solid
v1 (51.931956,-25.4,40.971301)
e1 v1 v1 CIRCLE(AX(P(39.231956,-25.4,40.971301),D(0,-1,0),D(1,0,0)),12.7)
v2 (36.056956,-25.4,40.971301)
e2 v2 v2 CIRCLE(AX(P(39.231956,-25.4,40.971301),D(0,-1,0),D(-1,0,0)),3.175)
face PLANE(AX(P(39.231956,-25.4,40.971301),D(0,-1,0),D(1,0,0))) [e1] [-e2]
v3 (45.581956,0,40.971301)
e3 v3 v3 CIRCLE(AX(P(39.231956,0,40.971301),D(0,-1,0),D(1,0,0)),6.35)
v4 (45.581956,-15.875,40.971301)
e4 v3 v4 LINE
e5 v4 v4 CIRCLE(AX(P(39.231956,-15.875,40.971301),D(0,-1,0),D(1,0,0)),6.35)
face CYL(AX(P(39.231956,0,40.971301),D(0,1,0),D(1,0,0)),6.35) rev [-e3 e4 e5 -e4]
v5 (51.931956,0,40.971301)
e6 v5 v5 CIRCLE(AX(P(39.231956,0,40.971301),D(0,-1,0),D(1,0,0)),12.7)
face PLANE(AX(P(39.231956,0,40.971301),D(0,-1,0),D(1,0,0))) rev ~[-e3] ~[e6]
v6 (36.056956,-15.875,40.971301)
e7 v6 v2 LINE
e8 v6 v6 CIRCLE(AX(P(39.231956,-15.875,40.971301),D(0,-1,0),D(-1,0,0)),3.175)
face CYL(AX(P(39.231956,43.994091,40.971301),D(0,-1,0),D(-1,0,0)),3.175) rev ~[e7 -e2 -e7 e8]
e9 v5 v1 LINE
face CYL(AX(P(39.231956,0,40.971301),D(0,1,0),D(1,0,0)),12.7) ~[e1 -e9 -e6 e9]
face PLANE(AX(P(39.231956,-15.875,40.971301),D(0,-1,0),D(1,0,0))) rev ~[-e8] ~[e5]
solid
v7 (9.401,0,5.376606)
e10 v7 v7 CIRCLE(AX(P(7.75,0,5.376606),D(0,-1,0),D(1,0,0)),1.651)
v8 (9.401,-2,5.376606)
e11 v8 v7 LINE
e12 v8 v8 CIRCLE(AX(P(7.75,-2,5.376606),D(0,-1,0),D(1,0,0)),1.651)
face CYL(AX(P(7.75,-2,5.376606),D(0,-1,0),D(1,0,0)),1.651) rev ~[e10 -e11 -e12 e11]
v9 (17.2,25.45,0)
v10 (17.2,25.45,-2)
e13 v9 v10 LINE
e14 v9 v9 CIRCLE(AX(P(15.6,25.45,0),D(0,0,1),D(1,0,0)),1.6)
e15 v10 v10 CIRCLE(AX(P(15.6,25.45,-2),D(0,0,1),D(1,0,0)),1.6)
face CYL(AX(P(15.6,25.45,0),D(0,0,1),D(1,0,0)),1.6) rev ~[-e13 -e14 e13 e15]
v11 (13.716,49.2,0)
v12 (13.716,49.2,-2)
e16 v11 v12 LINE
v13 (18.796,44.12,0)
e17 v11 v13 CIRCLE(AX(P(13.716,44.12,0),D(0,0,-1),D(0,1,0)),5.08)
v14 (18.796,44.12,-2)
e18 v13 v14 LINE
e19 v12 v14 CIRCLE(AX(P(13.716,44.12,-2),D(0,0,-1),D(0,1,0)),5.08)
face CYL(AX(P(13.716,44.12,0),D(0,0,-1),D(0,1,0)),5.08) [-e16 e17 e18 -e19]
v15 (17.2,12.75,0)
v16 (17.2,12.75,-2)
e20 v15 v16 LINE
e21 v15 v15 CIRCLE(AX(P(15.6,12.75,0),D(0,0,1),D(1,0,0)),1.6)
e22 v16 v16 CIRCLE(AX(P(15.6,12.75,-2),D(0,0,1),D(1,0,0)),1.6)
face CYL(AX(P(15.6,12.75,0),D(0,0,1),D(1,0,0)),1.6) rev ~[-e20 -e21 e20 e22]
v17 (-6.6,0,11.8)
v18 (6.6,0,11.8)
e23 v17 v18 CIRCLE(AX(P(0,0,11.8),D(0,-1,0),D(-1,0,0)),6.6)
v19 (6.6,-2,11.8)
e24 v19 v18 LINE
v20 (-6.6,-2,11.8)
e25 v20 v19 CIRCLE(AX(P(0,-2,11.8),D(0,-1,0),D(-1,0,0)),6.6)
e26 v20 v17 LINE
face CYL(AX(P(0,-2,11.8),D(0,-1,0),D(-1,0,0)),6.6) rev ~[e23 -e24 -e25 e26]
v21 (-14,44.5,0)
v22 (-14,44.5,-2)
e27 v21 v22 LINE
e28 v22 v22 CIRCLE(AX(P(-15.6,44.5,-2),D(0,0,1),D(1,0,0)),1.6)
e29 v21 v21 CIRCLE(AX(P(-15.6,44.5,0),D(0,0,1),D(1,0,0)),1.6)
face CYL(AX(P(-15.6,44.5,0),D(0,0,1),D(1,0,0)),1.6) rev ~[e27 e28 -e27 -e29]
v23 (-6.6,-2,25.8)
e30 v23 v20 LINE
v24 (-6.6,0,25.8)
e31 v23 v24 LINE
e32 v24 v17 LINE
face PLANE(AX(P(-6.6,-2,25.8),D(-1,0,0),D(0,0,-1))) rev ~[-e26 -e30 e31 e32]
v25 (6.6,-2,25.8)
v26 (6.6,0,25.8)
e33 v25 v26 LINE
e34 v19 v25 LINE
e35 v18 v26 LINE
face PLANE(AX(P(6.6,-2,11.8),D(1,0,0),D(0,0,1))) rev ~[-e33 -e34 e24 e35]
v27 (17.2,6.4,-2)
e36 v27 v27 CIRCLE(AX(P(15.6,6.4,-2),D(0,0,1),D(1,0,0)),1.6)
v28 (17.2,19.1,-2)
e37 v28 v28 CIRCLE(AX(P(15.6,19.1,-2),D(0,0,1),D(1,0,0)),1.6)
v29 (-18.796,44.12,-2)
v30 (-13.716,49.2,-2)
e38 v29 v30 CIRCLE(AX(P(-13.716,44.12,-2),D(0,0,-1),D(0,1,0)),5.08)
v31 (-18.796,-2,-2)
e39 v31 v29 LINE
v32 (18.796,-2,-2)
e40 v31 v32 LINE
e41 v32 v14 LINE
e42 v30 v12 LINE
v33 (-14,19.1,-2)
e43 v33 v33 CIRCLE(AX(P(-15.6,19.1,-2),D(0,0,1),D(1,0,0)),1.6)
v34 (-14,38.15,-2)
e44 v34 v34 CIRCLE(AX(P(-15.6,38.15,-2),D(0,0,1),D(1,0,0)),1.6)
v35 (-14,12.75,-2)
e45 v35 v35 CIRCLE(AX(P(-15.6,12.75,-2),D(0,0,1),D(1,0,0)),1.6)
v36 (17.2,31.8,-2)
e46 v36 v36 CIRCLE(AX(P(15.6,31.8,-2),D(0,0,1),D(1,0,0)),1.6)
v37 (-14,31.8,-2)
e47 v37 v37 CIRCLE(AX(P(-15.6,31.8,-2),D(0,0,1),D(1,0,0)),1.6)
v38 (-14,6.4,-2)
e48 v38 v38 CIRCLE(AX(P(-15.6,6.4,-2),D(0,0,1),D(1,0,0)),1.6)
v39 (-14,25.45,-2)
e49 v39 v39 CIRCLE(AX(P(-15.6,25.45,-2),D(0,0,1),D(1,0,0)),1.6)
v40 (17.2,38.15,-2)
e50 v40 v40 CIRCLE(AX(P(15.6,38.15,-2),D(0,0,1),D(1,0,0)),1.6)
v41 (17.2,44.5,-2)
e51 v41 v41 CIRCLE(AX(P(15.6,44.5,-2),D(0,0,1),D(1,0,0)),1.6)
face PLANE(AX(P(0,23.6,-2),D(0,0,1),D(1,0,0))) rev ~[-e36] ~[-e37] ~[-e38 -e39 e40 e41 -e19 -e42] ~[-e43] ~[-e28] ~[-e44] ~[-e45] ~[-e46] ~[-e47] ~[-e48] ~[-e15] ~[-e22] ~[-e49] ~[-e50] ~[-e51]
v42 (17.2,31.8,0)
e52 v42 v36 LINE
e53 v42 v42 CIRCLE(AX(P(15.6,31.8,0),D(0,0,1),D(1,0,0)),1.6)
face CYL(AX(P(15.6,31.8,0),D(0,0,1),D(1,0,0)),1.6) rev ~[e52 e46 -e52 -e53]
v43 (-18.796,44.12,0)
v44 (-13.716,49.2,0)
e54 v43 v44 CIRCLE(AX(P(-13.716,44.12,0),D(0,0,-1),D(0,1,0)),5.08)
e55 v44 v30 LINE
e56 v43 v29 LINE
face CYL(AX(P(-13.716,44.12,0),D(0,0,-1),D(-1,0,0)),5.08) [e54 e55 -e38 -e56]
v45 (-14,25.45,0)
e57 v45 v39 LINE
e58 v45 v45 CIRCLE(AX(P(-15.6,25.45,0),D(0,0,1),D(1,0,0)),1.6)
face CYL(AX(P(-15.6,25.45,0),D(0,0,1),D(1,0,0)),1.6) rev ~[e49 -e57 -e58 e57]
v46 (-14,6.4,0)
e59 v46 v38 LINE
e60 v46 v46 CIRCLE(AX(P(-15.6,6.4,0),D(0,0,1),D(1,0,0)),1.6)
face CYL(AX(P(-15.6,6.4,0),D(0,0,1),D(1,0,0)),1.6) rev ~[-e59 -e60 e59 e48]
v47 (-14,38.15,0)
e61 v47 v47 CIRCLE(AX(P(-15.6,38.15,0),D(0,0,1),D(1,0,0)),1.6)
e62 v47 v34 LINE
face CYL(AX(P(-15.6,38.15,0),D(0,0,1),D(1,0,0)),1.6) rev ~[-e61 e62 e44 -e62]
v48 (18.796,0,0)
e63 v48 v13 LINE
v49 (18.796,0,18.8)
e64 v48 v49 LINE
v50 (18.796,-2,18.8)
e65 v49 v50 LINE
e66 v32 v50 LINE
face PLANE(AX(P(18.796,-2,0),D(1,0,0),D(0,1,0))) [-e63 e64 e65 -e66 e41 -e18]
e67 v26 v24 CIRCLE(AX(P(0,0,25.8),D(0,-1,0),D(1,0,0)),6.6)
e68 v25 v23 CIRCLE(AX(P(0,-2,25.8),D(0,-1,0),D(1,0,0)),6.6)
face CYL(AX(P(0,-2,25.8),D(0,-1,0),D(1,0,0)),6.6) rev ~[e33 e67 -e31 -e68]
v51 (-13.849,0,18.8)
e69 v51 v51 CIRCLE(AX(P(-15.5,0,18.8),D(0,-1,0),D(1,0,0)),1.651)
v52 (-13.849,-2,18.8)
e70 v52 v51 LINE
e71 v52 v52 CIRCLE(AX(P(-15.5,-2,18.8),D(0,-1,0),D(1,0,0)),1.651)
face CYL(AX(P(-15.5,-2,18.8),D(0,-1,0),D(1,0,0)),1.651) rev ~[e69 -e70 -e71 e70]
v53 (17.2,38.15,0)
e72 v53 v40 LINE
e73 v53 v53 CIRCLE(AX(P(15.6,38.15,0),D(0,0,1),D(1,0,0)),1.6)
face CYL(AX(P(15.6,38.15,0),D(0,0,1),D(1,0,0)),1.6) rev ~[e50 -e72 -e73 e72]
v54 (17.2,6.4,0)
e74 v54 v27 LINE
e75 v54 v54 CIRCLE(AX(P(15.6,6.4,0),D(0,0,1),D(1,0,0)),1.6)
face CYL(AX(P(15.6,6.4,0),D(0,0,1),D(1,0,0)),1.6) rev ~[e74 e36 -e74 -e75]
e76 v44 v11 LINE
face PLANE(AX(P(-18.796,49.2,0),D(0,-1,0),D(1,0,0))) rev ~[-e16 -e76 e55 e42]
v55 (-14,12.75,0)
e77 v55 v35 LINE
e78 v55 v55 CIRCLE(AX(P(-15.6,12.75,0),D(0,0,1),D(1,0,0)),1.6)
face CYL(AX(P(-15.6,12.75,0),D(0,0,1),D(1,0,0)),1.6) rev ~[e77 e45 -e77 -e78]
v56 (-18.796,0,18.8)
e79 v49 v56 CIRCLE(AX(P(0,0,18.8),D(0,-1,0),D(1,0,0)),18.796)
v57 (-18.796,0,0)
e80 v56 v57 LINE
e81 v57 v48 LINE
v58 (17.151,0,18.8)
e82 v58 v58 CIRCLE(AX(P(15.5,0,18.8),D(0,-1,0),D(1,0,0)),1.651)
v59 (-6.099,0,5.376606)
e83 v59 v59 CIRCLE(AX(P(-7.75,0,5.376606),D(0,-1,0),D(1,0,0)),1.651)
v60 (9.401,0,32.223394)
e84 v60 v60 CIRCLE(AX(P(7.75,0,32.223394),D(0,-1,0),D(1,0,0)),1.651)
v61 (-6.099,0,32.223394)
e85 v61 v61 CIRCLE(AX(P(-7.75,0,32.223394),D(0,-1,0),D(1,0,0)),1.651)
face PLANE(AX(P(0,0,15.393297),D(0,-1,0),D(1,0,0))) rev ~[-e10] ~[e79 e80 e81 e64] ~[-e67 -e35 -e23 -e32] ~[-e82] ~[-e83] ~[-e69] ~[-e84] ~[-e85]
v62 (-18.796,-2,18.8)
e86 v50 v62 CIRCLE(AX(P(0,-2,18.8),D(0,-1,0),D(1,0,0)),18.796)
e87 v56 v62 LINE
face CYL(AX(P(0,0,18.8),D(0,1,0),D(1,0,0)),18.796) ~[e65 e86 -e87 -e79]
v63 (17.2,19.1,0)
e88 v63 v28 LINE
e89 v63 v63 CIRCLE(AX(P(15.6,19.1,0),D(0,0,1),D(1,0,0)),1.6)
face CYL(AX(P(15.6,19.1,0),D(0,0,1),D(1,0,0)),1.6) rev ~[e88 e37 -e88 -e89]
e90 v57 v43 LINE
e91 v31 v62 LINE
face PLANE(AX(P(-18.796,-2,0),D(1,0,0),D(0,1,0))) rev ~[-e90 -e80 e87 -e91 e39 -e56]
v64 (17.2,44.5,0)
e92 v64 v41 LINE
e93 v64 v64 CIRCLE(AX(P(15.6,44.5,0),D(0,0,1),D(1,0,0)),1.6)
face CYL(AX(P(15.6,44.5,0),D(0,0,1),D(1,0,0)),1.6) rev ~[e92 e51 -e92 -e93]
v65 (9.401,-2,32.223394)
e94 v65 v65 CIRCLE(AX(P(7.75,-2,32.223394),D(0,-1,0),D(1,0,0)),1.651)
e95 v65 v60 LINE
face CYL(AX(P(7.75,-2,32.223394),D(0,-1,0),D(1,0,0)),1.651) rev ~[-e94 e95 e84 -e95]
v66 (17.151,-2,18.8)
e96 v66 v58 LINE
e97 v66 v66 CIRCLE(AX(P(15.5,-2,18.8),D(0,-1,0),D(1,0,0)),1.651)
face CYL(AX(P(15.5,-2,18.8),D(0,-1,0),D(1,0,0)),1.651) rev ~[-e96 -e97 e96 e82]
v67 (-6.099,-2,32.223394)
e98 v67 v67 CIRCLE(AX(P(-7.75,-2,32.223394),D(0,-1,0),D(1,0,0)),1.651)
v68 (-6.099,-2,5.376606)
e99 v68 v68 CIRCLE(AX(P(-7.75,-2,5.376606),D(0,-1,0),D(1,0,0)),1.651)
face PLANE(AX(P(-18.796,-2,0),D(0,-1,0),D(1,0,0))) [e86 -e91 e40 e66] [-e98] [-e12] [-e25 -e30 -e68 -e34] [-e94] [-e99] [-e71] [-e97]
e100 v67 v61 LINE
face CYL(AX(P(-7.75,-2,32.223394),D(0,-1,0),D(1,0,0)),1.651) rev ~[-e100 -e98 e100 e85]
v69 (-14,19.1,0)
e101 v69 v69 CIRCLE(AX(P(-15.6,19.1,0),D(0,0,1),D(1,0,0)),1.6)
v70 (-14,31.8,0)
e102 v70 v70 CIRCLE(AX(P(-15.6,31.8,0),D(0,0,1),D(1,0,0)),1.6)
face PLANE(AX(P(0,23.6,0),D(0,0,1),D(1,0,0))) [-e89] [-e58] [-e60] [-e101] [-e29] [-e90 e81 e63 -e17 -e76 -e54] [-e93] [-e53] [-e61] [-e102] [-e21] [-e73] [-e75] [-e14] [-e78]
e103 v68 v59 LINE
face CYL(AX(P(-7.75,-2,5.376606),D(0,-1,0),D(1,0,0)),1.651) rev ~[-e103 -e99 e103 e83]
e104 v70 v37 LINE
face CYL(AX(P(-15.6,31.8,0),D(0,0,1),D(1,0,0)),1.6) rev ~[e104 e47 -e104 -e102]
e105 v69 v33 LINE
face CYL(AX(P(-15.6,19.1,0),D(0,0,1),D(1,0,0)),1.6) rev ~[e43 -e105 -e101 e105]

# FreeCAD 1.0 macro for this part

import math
import FreeCAD as App
import Part
import Sketcher
Q = App.Units.Quantity


def edges_at(feature, points):
    """Names of the edges that pass closest to the given points."""
    edges = feature.Shape.Edges
    near = lambda p: min(range(len(edges)), key=lambda i: edges[i].distToShape(Part.Vertex(*p))[0])
    return sorted({f"Edge{near(p) + 1}" for p in points})


def add_polygon(sketch, points):
    """Adds a closed chain of lines whose ends are joined by coincident constraints."""
    first, n = sketch.GeometryCount, len(points)
    for a, b in zip(points, points[1:] + points[:1]):
        sketch.addGeometry(Part.LineSegment(App.Vector(*a, 0), App.Vector(*b, 0)), False)
    for i in range(n):
        sketch.addConstraint(Sketcher.Constraint("Coincident", first + i, 2, first + (i + 1) % n, 1))

doc = App.newDocument("Part")
body = doc.addObject("PartDesign::Body", "Body")

sketch1 = doc.addObject("Sketcher::SketchObject", "Sketch")
body.addObject(sketch1)
sketch1.AttachmentSupport = (doc.XZ_Plane, [""])
sketch1.MapMode = "FlatFace"
sketch1.addGeometry([
    Part.LineSegment(App.Vector(-19, 19, 0), App.Vector(-19, 0, 0)),
    Part.LineSegment(App.Vector(-19, 0, 0), App.Vector(19, 0, 0)),
    Part.LineSegment(App.Vector(19, 0, 0), App.Vector(19, 19, 0)),
    Part.ArcOfCircle(Part.Circle(App.Vector(0, 19, 0), App.Vector(0, 0, 1), 19), math.radians(0), math.radians(180)),
], False)
sketch1.addConstraint([
    Sketcher.Constraint("Coincident", 0, 2, 1, 1),
    Sketcher.Constraint("Coincident", 1, 2, 2, 1),
    Sketcher.Constraint("Tangent", 2, 2, 3, 1),
    Sketcher.Constraint("Tangent", 3, 2, 0, 1),
    Sketcher.Constraint("Vertical", 0),
    Sketcher.Constraint("Horizontal", 1),
    Sketcher.Constraint("Vertical", 2),
    Sketcher.Constraint("Symmetric", 0, 2, 1, 2, -1, 1),
    Sketcher.Constraint("Radius", 3, Q("0.74 in")),
    Sketcher.Constraint("DistanceY", 0, 2, 0, 1, Q("18.8 mm")),
])
pad1 = doc.addObject("PartDesign::Pad", "Pad")
body.addObject(pad1)
pad1.Profile = sketch1
pad1.Length = 2

sketch2 = doc.addObject("Sketcher::SketchObject", "Sketch001")
body.addObject(sketch2)
sketch2.AttachmentSupport = (doc.XZ_Plane, [""])
sketch2.MapMode = "FlatFace"
sketch2.AttachmentOffset = App.Placement(App.Vector(0, 0, 2), App.Rotation())
sketch2.addGeometry([
    Part.Circle(App.Vector(-15.5, 18.8, 0), App.Vector(0, 0, 1), 1.7),
    Part.Circle(App.Vector(-7.8, 32.2, 0), App.Vector(0, 0, 1), 1.7),
    Part.Circle(App.Vector(7.8, 32.2, 0), App.Vector(0, 0, 1), 1.7),
    Part.Circle(App.Vector(7.8, 5.4, 0), App.Vector(0, 0, 1), 1.7),
    Part.Circle(App.Vector(-7.8, 5.4, 0), App.Vector(0, 0, 1), 1.7),
    Part.Circle(App.Vector(15.5, 18.8, 0), App.Vector(0, 0, 1), 1.7),
], False)
sketch2.addConstraint([
    Sketcher.Constraint("Equal", 0, 1),
    Sketcher.Constraint("Equal", 1, 2),
    Sketcher.Constraint("Equal", 2, 3),
    Sketcher.Constraint("Equal", 3, 4),
    Sketcher.Constraint("Equal", 4, 5),
    Sketcher.Constraint("Symmetric", 1, 3, 2, 3, -2),
    Sketcher.Constraint("Symmetric", 3, 3, 4, 3, -2),
    Sketcher.Constraint("Symmetric", 0, 3, 5, 3, -2),
    Sketcher.Constraint("Vertical", 2, 3, 3, 3),
    Sketcher.Constraint("Diameter", 0, Q("0.13 in")),
    Sketcher.Constraint("DistanceX", 0, 3, -1, 1, Q("15.5 mm")),
    Sketcher.Constraint("DistanceY", -1, 1, 0, 3, Q("18.8 mm")),
    Sketcher.Constraint("DistanceX", 1, 3, -1, 1, Q("7.75 mm")),
    Sketcher.Constraint("DistanceY", -1, 1, 1, 3, Q("32.223394 mm")),
    Sketcher.Constraint("DistanceY", -1, 1, 3, 3, Q("5.376606 mm")),
])
pocket1 = doc.addObject("PartDesign::Pocket", "Pocket")
body.addObject(pocket1)
pocket1.Profile = sketch2
pocket1.Type = "ThroughAll"

sketch3 = doc.addObject("Sketcher::SketchObject", "Sketch002")
body.addObject(sketch3)
sketch3.AttachmentSupport = (doc.XZ_Plane, [""])
sketch3.MapMode = "FlatFace"
sketch3.AttachmentOffset = App.Placement(App.Vector(0, 0, 2), App.Rotation())
sketch3.addGeometry([
    Part.ArcOfCircle(Part.Circle(App.Vector(0, 26, 0), App.Vector(0, 0, 1), 7), math.radians(0), math.radians(180)),
    Part.LineSegment(App.Vector(-7, 26, 0), App.Vector(-7, 12, 0)),
    Part.ArcOfCircle(Part.Circle(App.Vector(0, 12, 0), App.Vector(0, 0, 1), 7), math.radians(180), math.radians(360)),
    Part.LineSegment(App.Vector(7, 12, 0), App.Vector(7, 26, 0)),
], False)
sketch3.addConstraint([
    Sketcher.Constraint("Tangent", 0, 2, 1, 1),
    Sketcher.Constraint("Tangent", 1, 2, 2, 1),
    Sketcher.Constraint("Tangent", 2, 2, 3, 1),
    Sketcher.Constraint("Tangent", 3, 2, 0, 1),
    Sketcher.Constraint("Vertical", 1),
    Sketcher.Constraint("Vertical", 3),
    Sketcher.Constraint("PointOnObject", 0, 3, -2),
    Sketcher.Constraint("Radius", 0, Q("6.6 mm")),
    Sketcher.Constraint("DistanceY", 1, 2, 1, 1, Q("14 mm")),
    Sketcher.Constraint("DistanceY", -1, 1, 0, 3, Q("25.8 mm")),
])
pocket2 = doc.addObject("PartDesign::Pocket", "Pocket001")
body.addObject(pocket2)
pocket2.Profile = sketch3
pocket2.Type = "ThroughAll"

sketch4 = doc.addObject("Sketcher::SketchObject", "Sketch003")
body.addObject(sketch4)
sketch4.AttachmentSupport = (doc.XY_Plane, [""])
sketch4.MapMode = "FlatFace"
add_polygon(sketch4, [(-19, 49), (-19, -2), (19, -2), (19, 49)])
sketch4.addConstraint([
    Sketcher.Constraint("Vertical", 0),
    Sketcher.Constraint("Horizontal", 1),
    Sketcher.Constraint("Vertical", 2),
    Sketcher.Constraint("Horizontal", 3),
    Sketcher.Constraint("DistanceX", 1, 1, 1, 2, Q("1.48 in")),
    Sketcher.Constraint("DistanceX", 0, 2, -1, 1, Q("0.74 in")),
    Sketcher.Constraint("DistanceY", 0, 2, 0, 1, Q("51.2 mm")),
    Sketcher.Constraint("DistanceY", 0, 2, -1, 1, Q("2 mm")),
])
pad2 = doc.addObject("PartDesign::Pad", "Pad001")
body.addObject(pad2)
pad2.Profile = sketch4
pad2.Length = 2
pad2.Reversed = True

sketch5 = doc.addObject("Sketcher::SketchObject", "Sketch004")
body.addObject(sketch5)
sketch5.AttachmentSupport = (doc.XY_Plane, [""])
sketch5.MapMode = "FlatFace"
sketch5.addGeometry([
    Part.Circle(App.Vector(-15.6, 44.5, 0), App.Vector(0, 0, 1), 1.6),
    Part.Circle(App.Vector(-15.6, 38.1, 0), App.Vector(0, 0, 1), 1.6),
    Part.Circle(App.Vector(-15.6, 31.8, 0), App.Vector(0, 0, 1), 1.6),
    Part.Circle(App.Vector(-15.6, 25.4, 0), App.Vector(0, 0, 1), 1.6),
    Part.Circle(App.Vector(-15.6, 19.1, 0), App.Vector(0, 0, 1), 1.6),
    Part.Circle(App.Vector(-15.6, 12.8, 0), App.Vector(0, 0, 1), 1.6),
    Part.Circle(App.Vector(-15.6, 6.4, 0), App.Vector(0, 0, 1), 1.6),
    Part.Circle(App.Vector(15.6, 44.5, 0), App.Vector(0, 0, 1), 1.6),
    Part.Circle(App.Vector(15.6, 38.1, 0), App.Vector(0, 0, 1), 1.6),
    Part.Circle(App.Vector(15.6, 31.8, 0), App.Vector(0, 0, 1), 1.6),
    Part.Circle(App.Vector(15.6, 25.4, 0), App.Vector(0, 0, 1), 1.6),
    Part.Circle(App.Vector(15.6, 19.1, 0), App.Vector(0, 0, 1), 1.6),
    Part.Circle(App.Vector(15.6, 12.8, 0), App.Vector(0, 0, 1), 1.6),
    Part.Circle(App.Vector(15.6, 6.4, 0), App.Vector(0, 0, 1), 1.6),
], False)
sketch5.addConstraint([
    Sketcher.Constraint("Equal", 0, 1),
    Sketcher.Constraint("Equal", 1, 2),
    Sketcher.Constraint("Equal", 2, 3),
    Sketcher.Constraint("Equal", 3, 4),
    Sketcher.Constraint("Equal", 4, 5),
    Sketcher.Constraint("Equal", 5, 6),
    Sketcher.Constraint("Equal", 6, 7),
    Sketcher.Constraint("Equal", 7, 8),
    Sketcher.Constraint("Equal", 8, 9),
    Sketcher.Constraint("Equal", 9, 10),
    Sketcher.Constraint("Equal", 10, 11),
    Sketcher.Constraint("Equal", 11, 12),
    Sketcher.Constraint("Equal", 12, 13),
    Sketcher.Constraint("Symmetric", 0, 3, 7, 3, -2),
    Sketcher.Constraint("Symmetric", 1, 3, 8, 3, -2),
    Sketcher.Constraint("Symmetric", 2, 3, 9, 3, -2),
    Sketcher.Constraint("Symmetric", 3, 3, 10, 3, -2),
    Sketcher.Constraint("Symmetric", 4, 3, 11, 3, -2),
    Sketcher.Constraint("Symmetric", 5, 3, 12, 3, -2),
    Sketcher.Constraint("Symmetric", 6, 3, 13, 3, -2),
    Sketcher.Constraint("Vertical", 0, 3, 1, 3),
    Sketcher.Constraint("Vertical", 1, 3, 2, 3),
    Sketcher.Constraint("Vertical", 2, 3, 3, 3),
    Sketcher.Constraint("Vertical", 3, 3, 4, 3),
    Sketcher.Constraint("Vertical", 4, 3, 5, 3),
    Sketcher.Constraint("Vertical", 5, 3, 6, 3),
    Sketcher.Constraint("DistanceY", 4, 3, 0, 3, Q("1 in")),
    Sketcher.Constraint("DistanceY", 5, 3, 1, 3, Q("1 in")),
    Sketcher.Constraint("DistanceY", 6, 3, 2, 3, Q("1 in")),
    Sketcher.Constraint("DistanceY", 2, 3, 0, 3, Q("0.5 in")),
    Sketcher.Constraint("DistanceY", 3, 3, 1, 3, Q("0.5 in")),
    Sketcher.Constraint("Diameter", 0, Q("3.2 mm")),
    Sketcher.Constraint("DistanceY", 1, 3, 0, 3, Q("0.25 in")),
    Sketcher.Constraint("DistanceX", 0, 3, -1, 1, Q("15.6 mm")),
    Sketcher.Constraint("DistanceY", -1, 1, 0, 3, Q("44.5 mm")),
])
pocket3 = doc.addObject("PartDesign::Pocket", "Pocket002")
body.addObject(pocket3)
pocket3.Profile = sketch5
pocket3.Type = "ThroughAll"
doc.recompute()

fillet = doc.addObject("PartDesign::Fillet", "Fillet")
body.addObject(fillet)
fillet.Base = (pocket3, edges_at(pocket3, [(-18.796, 49.2, -1), (18.796, 49.2, -1)]))
fillet.Radius = Q("0.2 in")
body2 = doc.addObject("PartDesign::Body", "Body001")

sketch6 = doc.addObject("Sketcher::SketchObject", "Sketch005")
body2.addObject(sketch6)
sketch6.AttachmentSupport = (doc.getObject("XZ_Plane001"), [""])
sketch6.MapMode = "FlatFace"
sketch6.addGeometry(Part.Circle(App.Vector(39, 41, 0), App.Vector(0, 0, 1), 13), False)
sketch6.addConstraint([
    Sketcher.Constraint("Diameter", 0, Q("1 in")),
    Sketcher.Constraint("DistanceY", -1, 1, 0, 3, Q("40.971301 mm")),
    Sketcher.Constraint("DistanceX", -1, 1, 0, 3, Q("39.231956 mm")),
])
pad3 = doc.addObject("PartDesign::Pad", "Pad002")
body2.addObject(pad3)
pad3.Profile = sketch6
pad3.Length = Q("1 in")

sketch7 = doc.addObject("Sketcher::SketchObject", "Sketch006")
body2.addObject(sketch7)
sketch7.AttachmentSupport = (doc.getObject("XZ_Plane001"), [""])
sketch7.MapMode = "FlatFace"
sketch7.addGeometry(Part.Circle(App.Vector(39.2, 41, 0), App.Vector(0, 0, 1), 3.2), False)
sketch7.addConstraint([
    Sketcher.Constraint("Diameter", 0, Q("0.25 in")),
    Sketcher.Constraint("DistanceY", -1, 1, 0, 3, Q("40.971301 mm")),
    Sketcher.Constraint("DistanceX", -1, 1, 0, 3, Q("39.231956 mm")),
])
doc.recompute()
hole = doc.addObject("PartDesign::Hole", "Hole")
body2.addObject(hole)
hole.Profile = sketch7
hole.ThreadType = "None"
hole.Diameter = Q("0.25 in")
hole.DepthType = "ThroughAll"
hole.Reversed = True

sketch8 = doc.addObject("Sketcher::SketchObject", "Sketch007")
body2.addObject(sketch8)
sketch8.AttachmentSupport = (doc.getObject("XZ_Plane001"), [""])
sketch8.MapMode = "FlatFace"
sketch8.addGeometry(Part.Circle(App.Vector(39, 41, 0), App.Vector(0, 0, 1), 6), False)
sketch8.addConstraint([
    Sketcher.Constraint("Diameter", 0, Q("0.5 in")),
    Sketcher.Constraint("DistanceY", -1, 1, 0, 3, Q("40.971301 mm")),
    Sketcher.Constraint("DistanceX", -1, 1, 0, 3, Q("39.231956 mm")),
])
pocket4 = doc.addObject("PartDesign::Pocket", "Pocket003")
body2.addObject(pocket4)
pocket4.Profile = sketch8
pocket4.Length = Q("0.625 in")
pocket4.Reversed = True

doc.recompute()
